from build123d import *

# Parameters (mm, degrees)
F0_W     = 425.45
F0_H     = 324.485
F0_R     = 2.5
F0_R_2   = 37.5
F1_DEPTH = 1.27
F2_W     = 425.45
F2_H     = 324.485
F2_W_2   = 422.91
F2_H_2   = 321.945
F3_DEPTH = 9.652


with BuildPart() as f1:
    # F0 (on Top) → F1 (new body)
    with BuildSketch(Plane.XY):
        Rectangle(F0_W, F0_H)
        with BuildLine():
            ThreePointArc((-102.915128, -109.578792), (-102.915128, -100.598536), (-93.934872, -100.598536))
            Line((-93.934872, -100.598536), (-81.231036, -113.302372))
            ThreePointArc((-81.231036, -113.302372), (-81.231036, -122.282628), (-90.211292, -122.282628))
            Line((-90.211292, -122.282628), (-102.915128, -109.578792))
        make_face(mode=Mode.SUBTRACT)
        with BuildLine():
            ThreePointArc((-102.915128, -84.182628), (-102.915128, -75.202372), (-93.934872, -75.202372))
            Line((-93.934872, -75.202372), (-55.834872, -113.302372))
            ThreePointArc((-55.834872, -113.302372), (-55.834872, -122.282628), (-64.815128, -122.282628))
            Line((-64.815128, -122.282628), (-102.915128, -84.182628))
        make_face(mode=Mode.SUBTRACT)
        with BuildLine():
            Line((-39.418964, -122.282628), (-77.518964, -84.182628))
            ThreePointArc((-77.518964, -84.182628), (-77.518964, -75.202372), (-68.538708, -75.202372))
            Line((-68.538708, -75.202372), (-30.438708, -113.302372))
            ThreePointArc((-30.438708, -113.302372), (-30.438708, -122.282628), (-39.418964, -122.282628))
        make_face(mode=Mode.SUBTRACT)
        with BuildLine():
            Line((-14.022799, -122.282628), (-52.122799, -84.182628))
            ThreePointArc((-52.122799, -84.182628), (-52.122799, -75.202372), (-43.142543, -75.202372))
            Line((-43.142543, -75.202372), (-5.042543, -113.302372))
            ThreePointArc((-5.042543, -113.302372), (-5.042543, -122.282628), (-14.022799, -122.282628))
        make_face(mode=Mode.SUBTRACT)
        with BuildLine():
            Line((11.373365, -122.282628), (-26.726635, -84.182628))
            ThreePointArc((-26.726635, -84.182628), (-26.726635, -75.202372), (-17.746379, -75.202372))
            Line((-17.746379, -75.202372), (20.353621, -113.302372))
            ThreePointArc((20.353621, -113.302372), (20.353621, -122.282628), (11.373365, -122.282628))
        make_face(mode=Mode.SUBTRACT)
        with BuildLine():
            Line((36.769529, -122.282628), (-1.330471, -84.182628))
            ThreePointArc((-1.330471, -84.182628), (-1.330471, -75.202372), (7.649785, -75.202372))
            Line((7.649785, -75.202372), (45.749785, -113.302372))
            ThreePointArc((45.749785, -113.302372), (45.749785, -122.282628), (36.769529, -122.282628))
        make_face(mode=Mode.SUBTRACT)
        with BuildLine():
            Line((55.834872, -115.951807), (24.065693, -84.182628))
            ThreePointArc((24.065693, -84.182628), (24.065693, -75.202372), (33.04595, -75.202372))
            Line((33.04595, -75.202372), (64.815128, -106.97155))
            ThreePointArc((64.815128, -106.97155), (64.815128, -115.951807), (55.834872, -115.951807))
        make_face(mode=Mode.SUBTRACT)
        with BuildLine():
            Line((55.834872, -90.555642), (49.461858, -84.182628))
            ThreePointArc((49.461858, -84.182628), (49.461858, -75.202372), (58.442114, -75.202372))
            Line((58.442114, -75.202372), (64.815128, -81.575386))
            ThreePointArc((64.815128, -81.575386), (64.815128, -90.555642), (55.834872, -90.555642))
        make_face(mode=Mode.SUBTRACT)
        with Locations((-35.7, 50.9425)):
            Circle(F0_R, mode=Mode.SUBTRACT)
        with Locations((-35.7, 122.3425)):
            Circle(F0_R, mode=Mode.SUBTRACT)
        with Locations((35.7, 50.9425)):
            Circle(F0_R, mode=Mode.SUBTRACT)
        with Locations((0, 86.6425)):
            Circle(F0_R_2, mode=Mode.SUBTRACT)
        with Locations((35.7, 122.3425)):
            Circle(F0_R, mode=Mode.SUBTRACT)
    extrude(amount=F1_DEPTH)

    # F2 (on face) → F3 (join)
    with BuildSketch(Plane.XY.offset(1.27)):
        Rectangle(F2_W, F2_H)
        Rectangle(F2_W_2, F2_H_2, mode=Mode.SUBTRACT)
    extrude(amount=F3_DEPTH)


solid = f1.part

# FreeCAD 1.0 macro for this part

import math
import FreeCAD as App
import Part
import Sketcher
Q = App.Units.Quantity

doc = App.newDocument("Part")
body = doc.addObject("PartDesign::Body", "Body")

# Sketch on XY plane
sketch1 = body.newObject("Sketcher::SketchObject", "Sketch")
sketch1.AttachmentSupport = (doc.getObject("XY_Plane"), [""])
sketch1.MapMode = "FlatFace"
sketch1.addGeometry(Part.LineSegment(App.Vector(-212.725, 162.2425, 0), App.Vector(-212.725, -162.2425, 0)), False)
sketch1.addGeometry(Part.LineSegment(App.Vector(-212.725, -162.2425, 0), App.Vector(212.725, -162.2425, 0)), False)
sketch1.addGeometry(Part.LineSegment(App.Vector(212.725, -162.2425, 0), App.Vector(212.725, 162.2425, 0)), False)
sketch1.addGeometry(Part.LineSegment(App.Vector(212.725, 162.2425, 0), App.Vector(-212.725, 162.2425, 0)), False)
sketch1.addGeometry(Part.LineSegment(App.Vector(-90.211292, -122.282628, 0), App.Vector(-102.915128, -109.578792, 0)), False)
sketch1.addGeometry(Part.ArcOfCircle(Part.Circle(App.Vector(-98.425, -105.088664, 0), App.Vector(0, 0, 1), 6.35), math.radians(45), math.radians(225)), False)
sketch1.addGeometry(Part.LineSegment(App.Vector(-93.934872, -100.598536, 0), App.Vector(-81.231036, -113.302372, 0)), False)
sketch1.addGeometry(Part.ArcOfCircle(Part.Circle(App.Vector(-85.721164, -117.7925, 0), App.Vector(0, 0, 1), 6.35), math.radians(-135), math.radians(45)), False)
sketch1.addGeometry(Part.LineSegment(App.Vector(-64.815128, -122.282628, 0), App.Vector(-102.915128, -84.182628, 0)), False)
sketch1.addGeometry(Part.ArcOfCircle(Part.Circle(App.Vector(-98.425, -79.6925, 0), App.Vector(0, 0, 1), 6.35), math.radians(45), math.radians(225)), False)
sketch1.addGeometry(Part.LineSegment(App.Vector(-93.934872, -75.202372, 0), App.Vector(-55.834872, -113.302372, 0)), False)
sketch1.addGeometry(Part.ArcOfCircle(Part.Circle(App.Vector(-60.325, -117.7925, 0), App.Vector(0, 0, 1), 6.35), math.radians(-135), math.radians(45)), False)
sketch1.addGeometry(Part.ArcOfCircle(Part.Circle(App.Vector(-34.928836, -117.7925, 0), App.Vector(0, 0, 1), 6.35), math.radians(-135), math.radians(45)), False)
sketch1.addGeometry(Part.LineSegment(App.Vector(-39.418964, -122.282628, 0), App.Vector(-77.518964, -84.182628, 0)), False)
sketch1.addGeometry(Part.ArcOfCircle(Part.Circle(App.Vector(-73.028836, -79.6925, 0), App.Vector(0, 0, 1), 6.35), math.radians(45), math.radians(225)), False)
sketch1.addGeometry(Part.LineSegment(App.Vector(-68.538708, -75.202372, 0), App.Vector(-30.438708, -113.302372, 0)), False)
sketch1.addGeometry(Part.ArcOfCircle(Part.Circle(App.Vector(-9.532671, -117.7925, 0), App.Vector(0, 0, 1), 6.35), math.radians(-135), math.radians(45)), False)
sketch1.addGeometry(Part.LineSegment(App.Vector(-14.022799, -122.282628, 0), App.Vector(-52.122799, -84.182628, 0)), False)
sketch1.addGeometry(Part.ArcOfCircle(Part.Circle(App.Vector(-47.632671, -79.6925, 0), App.Vector(0, 0, 1), 6.35), math.radians(45), math.radians(225)), False)
sketch1.addGeometry(Part.LineSegment(App.Vector(-43.142543, -75.202372, 0), App.Vector(-5.042543, -113.302372, 0)), False)
sketch1.addGeometry(Part.ArcOfCircle(Part.Circle(App.Vector(15.863493, -117.7925, 0), App.Vector(0, 0, 1), 6.35), math.radians(-135), math.radians(45)), False)
sketch1.addGeometry(Part.LineSegment(App.Vector(11.373365, -122.282628, 0), App.Vector(-26.726635, -84.182628, 0)), False)
sketch1.addGeometry(Part.ArcOfCircle(Part.Circle(App.Vector(-22.236507, -79.6925, 0), App.Vector(0, 0, 1), 6.35), math.radians(45), math.radians(225)), False)
sketch1.addGeometry(Part.LineSegment(App.Vector(-17.746379, -75.202372, 0), App.Vector(20.353621, -113.302372, 0)), False)
sketch1.addGeometry(Part.ArcOfCircle(Part.Circle(App.Vector(41.259657, -117.7925, 0), App.Vector(0, 0, 1), 6.35), math.radians(-135), math.radians(45)), False)
sketch1.addGeometry(Part.LineSegment(App.Vector(36.769529, -122.282628, 0), App.Vector(-1.330471, -84.182628, 0)), False)
sketch1.addGeometry(Part.ArcOfCircle(Part.Circle(App.Vector(3.159657, -79.6925, 0), App.Vector(0, 0, 1), 6.35), math.radians(45), math.radians(225)), False)
sketch1.addGeometry(Part.LineSegment(App.Vector(7.649785, -75.202372, 0), App.Vector(45.749785, -113.302372, 0)), False)
sketch1.addGeometry(Part.ArcOfCircle(Part.Circle(App.Vector(60.325, -111.461679, 0), App.Vector(0, 0, 1), 6.35), math.radians(-134.999997), math.radians(45.000003)), False)
sketch1.addGeometry(Part.LineSegment(App.Vector(55.834872, -115.951807, 0), App.Vector(24.065693, -84.182628, 0)), False)
sketch1.addGeometry(Part.ArcOfCircle(Part.Circle(App.Vector(28.555822, -79.6925, 0), App.Vector(0, 0, 1), 6.35), math.radians(44.999997), math.radians(224.999997)), False)
sketch1.addGeometry(Part.LineSegment(App.Vector(33.04595, -75.202372, 0), App.Vector(64.815128, -106.97155, 0)), False)
sketch1.addGeometry(Part.ArcOfCircle(Part.Circle(App.Vector(60.325, -86.065514, 0), App.Vector(0, 0, 1), 6.35), math.radians(-135), math.radians(45)), False)
sketch1.addGeometry(Part.LineSegment(App.Vector(55.834872, -90.555642, 0), App.Vector(49.461858, -84.182628, 0)), False)
sketch1.addGeometry(Part.ArcOfCircle(Part.Circle(App.Vector(53.951986, -79.6925, 0), App.Vector(0, 0, 1), 6.35), math.radians(45), math.radians(225)), False)
sketch1.addGeometry(Part.LineSegment(App.Vector(58.442114, -75.202372, 0), App.Vector(64.815128, -81.575386, 0)), False)
sketch1.addGeometry(Part.Circle(App.Vector(-35.7, 50.9425, 0), App.Vector(0, 0, 1), 2.5), False)
sketch1.addGeometry(Part.Circle(App.Vector(-35.7, 122.3425, 0), App.Vector(0, 0, 1), 2.5), False)
sketch1.addGeometry(Part.Circle(App.Vector(35.7, 50.9425, 0), App.Vector(0, 0, 1), 2.5), False)
sketch1.addGeometry(Part.Circle(App.Vector(0, 86.6425, 0), App.Vector(0, 0, 1), 37.5), False)
sketch1.addGeometry(Part.Circle(App.Vector(35.7, 122.3425, 0), App.Vector(0, 0, 1), 2.5), False)
sketch1.addConstraint(Sketcher.Constraint("Coincident", 0, 2, 1, 1))
sketch1.addConstraint(Sketcher.Constraint("Coincident", 1, 2, 2, 1))
sketch1.addConstraint(Sketcher.Constraint("Coincident", 2, 2, 3, 1))
sketch1.addConstraint(Sketcher.Constraint("Coincident", 3, 2, 0, 1))
sketch1.addConstraint(Sketcher.Constraint("Tangent", 4, 2, 5, 2))
sketch1.addConstraint(Sketcher.Constraint("Tangent", 5, 1, 6, 1))
sketch1.addConstraint(Sketcher.Constraint("Tangent", 6, 2, 7, 2))
sketch1.addConstraint(Sketcher.Constraint("Tangent", 7, 1, 4, 1))
sketch1.addConstraint(Sketcher.Constraint("Tangent", 8, 2, 9, 2))
sketch1.addConstraint(Sketcher.Constraint("Tangent", 9, 1, 10, 1))
sketch1.addConstraint(Sketcher.Constraint("Tangent", 10, 2, 11, 2))
sketch1.addConstraint(Sketcher.Constraint("Tangent", 11, 1, 8, 1))
sketch1.addConstraint(Sketcher.Constraint("Tangent", 12, 1, 13, 1))
sketch1.addConstraint(Sketcher.Constraint("Tangent", 13, 2, 14, 2))
sketch1.addConstraint(Sketcher.Constraint("Tangent", 14, 1, 15, 1))
sketch1.addConstraint(Sketcher.Constraint("Tangent", 15, 2, 12, 2))
sketch1.addConstraint(Sketcher.Constraint("Tangent", 16, 1, 17, 1))
sketch1.addConstraint(Sketcher.Constraint("Tangent", 17, 2, 18, 2))
sketch1.addConstraint(Sketcher.Constraint("Tangent", 18, 1, 19, 1))
sketch1.addConstraint(Sketcher.Constraint("Tangent", 19, 2, 16, 2))
sketch1.addConstraint(Sketcher.Constraint("Tangent", 20, 1, 21, 1))
sketch1.addConstraint(Sketcher.Constraint("Tangent", 21, 2, 22, 2))
sketch1.addConstraint(Sketcher.Constraint("Tangent", 22, 1, 23, 1))
sketch1.addConstraint(Sketcher.Constraint("Tangent", 23, 2, 20, 2))
sketch1.addConstraint(Sketcher.Constraint("Tangent", 24, 1, 25, 1))
sketch1.addConstraint(Sketcher.Constraint("Tangent", 25, 2, 26, 2))
sketch1.addConstraint(Sketcher.Constraint("Tangent", 26, 1, 27, 1))
sketch1.addConstraint(Sketcher.Constraint("Tangent", 27, 2, 24, 2))
sketch1.addConstraint(Sketcher.Constraint("Tangent", 28, 1, 29, 1))
sketch1.addConstraint(Sketcher.Constraint("Tangent", 29, 2, 30, 2))
sketch1.addConstraint(Sketcher.Constraint("Tangent", 30, 1, 31, 1))
sketch1.addConstraint(Sketcher.Constraint("Tangent", 31, 2, 28, 2))
sketch1.addConstraint(Sketcher.Constraint("Tangent", 32, 1, 33, 1))
sketch1.addConstraint(Sketcher.Constraint("Tangent", 33, 2, 34, 2))
sketch1.addConstraint(Sketcher.Constraint("Tangent", 34, 1, 35, 1))
sketch1.addConstraint(Sketcher.Constraint("Tangent", 35, 2, 32, 2))
sketch1.addConstraint(Sketcher.Constraint("Vertical", 0))
sketch1.addConstraint(Sketcher.Constraint("Horizontal", 1))
sketch1.addConstraint(Sketcher.Constraint("Vertical", 2))
sketch1.addConstraint(Sketcher.Constraint("Horizontal", 3))
sketch1.addConstraint(Sketcher.Constraint("Equal", 5, 7))
sketch1.addConstraint(Sketcher.Constraint("Equal", 7, 9))
sketch1.addConstraint(Sketcher.Constraint("Equal", 9, 11))
sketch1.addConstraint(Sketcher.Constraint("Equal", 11, 12))
sketch1.addConstraint(Sketcher.Constraint("Equal", 12, 14))
sketch1.addConstraint(Sketcher.Constraint("Equal", 14, 16))
sketch1.addConstraint(Sketcher.Constraint("Equal", 16, 18))
sketch1.addConstraint(Sketcher.Constraint("Equal", 18, 20))
sketch1.addConstraint(Sketcher.Constraint("Equal", 20, 22))
sketch1.addConstraint(Sketcher.Constraint("Equal", 22, 24))
sketch1.addConstraint(Sketcher.Constraint("Equal", 24, 26))
sketch1.addConstraint(Sketcher.Constraint("Equal", 26, 28))
sketch1.addConstraint(Sketcher.Constraint("Equal", 28, 30))
sketch1.addConstraint(Sketcher.Constraint("Equal", 30, 32))
sketch1.addConstraint(Sketcher.Constraint("Equal", 32, 34))
sketch1.addConstraint(Sketcher.Constraint("Equal", 36, 37))
sketch1.addConstraint(Sketcher.Constraint("Equal", 37, 38))
sketch1.addConstraint(Sketcher.Constraint("Equal", 38, 40))
sketch1.addConstraint(Sketcher.Constraint("Symmetric", 0, 2, 2, 2, -1, 1))
sketch1.addConstraint(Sketcher.Constraint("Symmetric", 36, 3, 38, 3, -2))
sketch1.addConstraint(Sketcher.Constraint("Symmetric", 37, 3, 40, 3, -2))
sketch1.addConstraint(Sketcher.Constraint("PointOnObject", 39, 3, -2))
sketch1.addConstraint(Sketcher.Constraint("Parallel", 6, 8))
sketch1.addConstraint(Sketcher.Constraint("Parallel", 10, 13))
sketch1.addConstraint(Sketcher.Constraint("Parallel", 15, 17))
sketch1.addConstraint(Sketcher.Constraint("Parallel", 19, 21))
sketch1.addConstraint(Sketcher.Constraint("Parallel", 23, 25))
sketch1.addConstraint(Sketcher.Constraint("Parallel", 27, 29))
sketch1.addConstraint(Sketcher.Constraint("Parallel", 31, 33))
sketch1.addConstraint(Sketcher.Constraint("Horizontal", 7, 3, 11, 3))
sketch1.addConstraint(Sketcher.Constraint("Horizontal", 11, 3, 12, 3))
sketch1.addConstraint(Sketcher.Constraint("Horizontal", 9, 3, 14, 3))
sketch1.addConstraint(Sketcher.Constraint("Horizontal", 12, 3, 16, 3))
sketch1.addConstraint(Sketcher.Constraint("Horizontal", 14, 3, 18, 3))
sketch1.addConstraint(Sketcher.Constraint("Horizontal", 16, 3, 20, 3))
sketch1.addConstraint(Sketcher.Constraint("Horizontal", 18, 3, 22, 3))
sketch1.addConstraint(Sketcher.Constraint("Horizontal", 20, 3, 24, 3))
sketch1.addConstraint(Sketcher.Constraint("Horizontal", 22, 3, 26, 3))
sketch1.addConstraint(Sketcher.Constraint("Horizontal", 26, 3, 30, 3))
sketch1.addConstraint(Sketcher.Constraint("Horizontal", 30, 3, 34, 3))
sketch1.addConstraint(Sketcher.Constraint("Vertical", 5, 3, 9, 3))
sketch1.addConstraint(Sketcher.Constraint("Vertical", 28, 3, 32, 3))
sketch1.addConstraint(Sketcher.Constraint("Vertical", 36, 3, 37, 3))
sketch1.addConstraint(Sketcher.Constraint("Radius", 5, Q("0.25 in")))
sketch1.addConstraint(Sketcher.Constraint("Angle", 4, Q("135 deg")))
sketch1.addConstraint(Sketcher.Constraint("DistanceX", 0, 2, 11, 3, Q("6 in")))
sketch1.addConstraint(Sketcher.Constraint("DistanceX", 28, 3, 1, 2, Q("6 in")))
sketch1.addConstraint(Sketcher.Constraint("DistanceX", 1, 1, 1, 2, Q("16.75 in")))
sketch1.addConstraint(Sketcher.Constraint("DistanceY", 7, 3, 9, 3, Q("1.5 in")))
sketch1.addConstraint(Sketcher.Constraint("Diameter", 36, 5.0))
sketch1.addConstraint(Sketcher.Constraint("Diameter", 39, 75.0))
sketch1.addConstraint(Sketcher.Constraint("DistanceY", 0, 2, 0, 1, Q("12.775 in")))
sketch1.addConstraint(Sketcher.Constraint("DistanceY", 0, 2, 7, 3, Q("1.75 in")))
sketch1.addConstraint(Sketcher.Constraint("DistanceX", 36, 3, -1, 1, 35.7))
sketch1.addConstraint(Sketcher.Constraint("DistanceY", -1, 1, 36, 3, 50.9425))
sketch1.addConstraint(Sketcher.Constraint("DistanceY", -1, 1, 37, 3, 122.3425))
sketch1.addConstraint(Sketcher.Constraint("DistanceY", -1, 1, 39, 3, 86.6425))
sketch1.addConstraint(Sketcher.Constraint("DistanceX", 16, 1, -1, 1, 14.022799))
sketch1.addConstraint(Sketcher.Constraint("DistanceY", 28, 3, -1, 1, 111.461679))
sketch1.addConstraint(Sketcher.Constraint("DistanceX", 7, 1, -1, 1, 90.211292))
sketch1.addConstraint(Sketcher.Constraint("DistanceX", 14, 1, -1, 1, 68.538708))
sketch1.addConstraint(Sketcher.Constraint("DistanceX", 22, 1, -1, 1, 17.746379))
sketch1.addConstraint(Sketcher.Constraint("DistanceX", -1, 1, 24, 1, 36.769529))
sketch1.addConstraint(Sketcher.Constraint("DistanceY", 32, 1, -1, 1, 90.555642))
pad1 = body.newObject("PartDesign::Pad", "Pad")
pad1.Profile = sketch1
pad1.Length = Q("0.05 in")

# Sketch on XY plane
sketch2 = body.newObject("Sketcher::SketchObject", "Sketch001")
sketch2.AttachmentSupport = (doc.getObject("XY_Plane"), [""])
sketch2.MapMode = "FlatFace"
sketch2.AttachmentOffset = App.Placement(App.Vector(0, 0, 0.05 * 25.4), App.Rotation())
sketch2.addGeometry(Part.LineSegment(App.Vector(-212.725, 162.2425, 0), App.Vector(-212.725, -162.2425, 0)), False)
sketch2.addGeometry(Part.LineSegment(App.Vector(-212.725, -162.2425, 0), App.Vector(212.725, -162.2425, 0)), False)
sketch2.addGeometry(Part.LineSegment(App.Vector(212.725, -162.2425, 0), App.Vector(212.725, 162.2425, 0)), False)
sketch2.addGeometry(Part.LineSegment(App.Vector(212.725, 162.2425, 0), App.Vector(-212.725, 162.2425, 0)), False)
sketch2.addGeometry(Part.LineSegment(App.Vector(211.455, -160.9725, 0), App.Vector(-211.455, -160.9725, 0)), False)
sketch2.addGeometry(Part.LineSegment(App.Vector(-211.455, -160.9725, 0), App.Vector(-211.455, 160.9725, 0)), False)
sketch2.addGeometry(Part.LineSegment(App.Vector(-211.455, 160.9725, 0), App.Vector(211.455, 160.9725, 0)), False)
sketch2.addGeometry(Part.LineSegment(App.Vector(211.455, 160.9725, 0), App.Vector(211.455, -160.9725, 0)), False)
sketch2.addConstraint(Sketcher.Constraint("Coincident", 0, 2, 1, 1))
sketch2.addConstraint(Sketcher.Constraint("Coincident", 1, 2, 2, 1))
sketch2.addConstraint(Sketcher.Constraint("Coincident", 2, 2, 3, 1))
sketch2.addConstraint(Sketcher.Constraint("Coincident", 3, 2, 0, 1))
sketch2.addConstraint(Sketcher.Constraint("Coincident", 4, 2, 5, 1))
sketch2.addConstraint(Sketcher.Constraint("Coincident", 5, 2, 6, 1))
sketch2.addConstraint(Sketcher.Constraint("Coincident", 6, 2, 7, 1))
sketch2.addConstraint(Sketcher.Constraint("Coincident", 7, 2, 4, 1))
sketch2.addConstraint(Sketcher.Constraint("Vertical", 0))
sketch2.addConstraint(Sketcher.Constraint("Horizontal", 1))
sketch2.addConstraint(Sketcher.Constraint("Vertical", 2))
sketch2.addConstraint(Sketcher.Constraint("Horizontal", 3))
sketch2.addConstraint(Sketcher.Constraint("Horizontal", 4))
sketch2.addConstraint(Sketcher.Constraint("Vertical", 5))
sketch2.addConstraint(Sketcher.Constraint("Horizontal", 6))
sketch2.addConstraint(Sketcher.Constraint("Vertical", 7))
sketch2.addConstraint(Sketcher.Constraint("Symmetric", 0, 2, 2, 2, -1, 1))
sketch2.addConstraint(Sketcher.Constraint("Symmetric", 4, 2, 6, 2, -1, 1))
sketch2.addConstraint(Sketcher.Constraint("DistanceX", 1, 1, 1, 2, Q("16.75 in")))
sketch2.addConstraint(Sketcher.Constraint("DistanceX", 4, 2, 4, 1, Q("16.65 in")))
sketch2.addConstraint(Sketcher.Constraint("DistanceY", 0, 2, 0, 1, Q("12.775 in")))
sketch2.addConstraint(Sketcher.Constraint("DistanceY", 5, 1, 5, 2, Q("12.675 in")))
pad2 = body.newObject("PartDesign::Pad", "Pad001")
pad2.Profile = sketch2
pad2.Length = Q("0.38 in")

doc.recompute()
